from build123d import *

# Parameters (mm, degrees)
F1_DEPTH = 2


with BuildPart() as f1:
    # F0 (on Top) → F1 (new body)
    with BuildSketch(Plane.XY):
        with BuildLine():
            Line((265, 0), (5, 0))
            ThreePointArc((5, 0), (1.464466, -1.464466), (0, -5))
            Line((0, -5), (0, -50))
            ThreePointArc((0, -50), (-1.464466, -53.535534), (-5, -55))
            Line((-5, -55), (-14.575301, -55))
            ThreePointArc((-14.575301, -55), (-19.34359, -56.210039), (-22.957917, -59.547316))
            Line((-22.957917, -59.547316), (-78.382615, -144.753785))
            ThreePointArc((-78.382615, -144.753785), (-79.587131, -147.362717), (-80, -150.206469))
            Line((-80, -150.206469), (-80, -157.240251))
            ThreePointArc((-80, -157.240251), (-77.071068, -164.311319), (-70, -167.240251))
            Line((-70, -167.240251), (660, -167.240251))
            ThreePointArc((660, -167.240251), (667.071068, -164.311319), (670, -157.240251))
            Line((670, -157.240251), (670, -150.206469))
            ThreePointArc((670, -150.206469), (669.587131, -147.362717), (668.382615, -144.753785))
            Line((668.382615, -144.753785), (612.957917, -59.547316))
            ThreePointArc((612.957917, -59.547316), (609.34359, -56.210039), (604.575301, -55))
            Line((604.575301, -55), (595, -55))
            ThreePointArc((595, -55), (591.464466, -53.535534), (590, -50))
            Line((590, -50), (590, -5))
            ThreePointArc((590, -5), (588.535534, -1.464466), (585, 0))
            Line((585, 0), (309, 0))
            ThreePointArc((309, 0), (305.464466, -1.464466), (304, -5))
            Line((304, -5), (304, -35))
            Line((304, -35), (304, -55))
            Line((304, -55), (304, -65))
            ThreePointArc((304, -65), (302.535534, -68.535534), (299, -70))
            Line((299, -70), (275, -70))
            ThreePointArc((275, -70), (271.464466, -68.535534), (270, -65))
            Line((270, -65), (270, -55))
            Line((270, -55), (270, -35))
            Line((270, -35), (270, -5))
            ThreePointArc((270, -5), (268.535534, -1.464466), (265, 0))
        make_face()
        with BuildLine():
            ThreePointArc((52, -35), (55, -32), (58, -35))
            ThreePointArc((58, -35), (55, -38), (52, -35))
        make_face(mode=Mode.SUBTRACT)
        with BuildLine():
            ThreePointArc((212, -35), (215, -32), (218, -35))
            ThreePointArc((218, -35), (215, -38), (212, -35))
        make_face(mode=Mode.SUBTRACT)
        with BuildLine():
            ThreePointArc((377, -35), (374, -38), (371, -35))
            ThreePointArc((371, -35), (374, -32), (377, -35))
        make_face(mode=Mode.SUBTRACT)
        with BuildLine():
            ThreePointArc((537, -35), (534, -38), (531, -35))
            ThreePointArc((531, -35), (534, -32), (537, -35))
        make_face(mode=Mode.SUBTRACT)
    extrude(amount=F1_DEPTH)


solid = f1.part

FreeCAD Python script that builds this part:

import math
import FreeCAD as App
import Part
import Sketcher

V = App.Vector

doc = App.newDocument("Part")
body = doc.addObject("PartDesign::Body", "Body")

sketch1 = body.newObject("Sketcher::SketchObject", "Sketch")
sketch1.AttachmentSupport = (doc.getObject("XY_Plane"), [""])
sketch1.MapMode = "FlatFace"
sketch1.addGeometry([
    Part.LineSegment(V(265, 0, 0), V(5, 0, 0)),
    Part.ArcOfCircle(Part.Circle(V(5, -5, 0), V(0, 0, 1), 5), math.radians(89.999996), math.radians(180.000004)),
    Part.LineSegment(V(0, -5, 0), V(0, -50, 0)),
    Part.ArcOfCircle(Part.Circle(V(-5, -50, 0), V(0, 0, 1), 5), math.radians(-90.000004), math.radians(0.000004)),
    Part.LineSegment(V(-5, -55, 0), V(-14.575301, -55, 0)),
    Part.ArcOfCircle(Part.Circle(V(-14.575299, -65.000005, 0), V(0, 0, 1), 10.000005), math.radians(90.000011), math.radians(146.956978)),
    Part.LineSegment(V(-22.957917, -59.547316, 0), V(-78.382615, -144.753785, 0)),
    Part.ArcOfCircle(Part.Circle(V(-70.000009, -150.206467, 0), V(0, 0, 1), 9.999991), math.radians(146.956976), math.radians(180.000014)),
    Part.LineSegment(V(-80, -150.206469, 0), V(-80, -157.240251, 0)),
    Part.ArcOfCircle(Part.Circle(V(-70.000001, -157.240252, 0), V(0, 0, 1), 9.999999), math.radians(179.999996), math.radians(270.000004)),
    Part.LineSegment(V(-70, -167.240251, 0), V(660, -167.240251, 0)),
    Part.ArcOfCircle(Part.Circle(V(660.000001, -157.240252, 0), V(0, 0, 1), 9.999999), math.radians(-90.000004), math.radians(0.000004)),
    Part.LineSegment(V(670, -157.240251, 0), V(670, -150.206469, 0)),
    Part.ArcOfCircle(Part.Circle(V(660.000009, -150.206467, 0), V(0, 0, 1), 9.999991), math.radians(-0.000014), math.radians(33.043024)),
    Part.LineSegment(V(668.382615, -144.753785, 0), V(612.957917, -59.547316, 0)),
    Part.ArcOfCircle(Part.Circle(V(604.575299, -65.000005, 0), V(0, 0, 1), 10.000005), math.radians(33.043022), math.radians(89.999989)),
    Part.LineSegment(V(604.575301, -55, 0), V(595, -55, 0)),
    Part.ArcOfCircle(Part.Circle(V(595, -50, 0), V(0, 0, 1), 5), math.radians(179.999996), math.radians(270.000004)),
    Part.LineSegment(V(590, -50, 0), V(590, -5, 0)),
    Part.ArcOfCircle(Part.Circle(V(585, -5, 0), V(0, 0, 1), 5), math.radians(-0.000004), math.radians(90.000004)),
    Part.LineSegment(V(585, 0, 0), V(309, 0, 0)),
    Part.ArcOfCircle(Part.Circle(V(309, -5, 0), V(0, 0, 1), 5), math.radians(89.999996), math.radians(180.000004)),
    Part.LineSegment(V(304, -5, 0), V(304, -65, 0)),
    Part.ArcOfCircle(Part.Circle(V(299, -65, 0), V(0, 0, 1), 5), math.radians(-90.000004), math.radians(0.000004)),
    Part.LineSegment(V(299, -70, 0), V(275, -70, 0)),
    Part.ArcOfCircle(Part.Circle(V(275, -65, 0), V(0, 0, 1), 5), math.radians(179.999996), math.radians(270.000004)),
    Part.LineSegment(V(270, -65, 0), V(270, -5, 0)),
    Part.ArcOfCircle(Part.Circle(V(265, -5, 0), V(0, 0, 1), 5), math.radians(-0.000004), math.radians(90.000004)),
    Part.Circle(V(55, -35, 0), V(0, 0, 1), 3),
    Part.Circle(V(215, -35, 0), V(0, 0, 1), 3),
    Part.Circle(V(374, -35, 0), V(0, 0, 1), 3),
    Part.Circle(V(534, -35, 0), V(0, 0, 1), 3),
], False)
sketch1.addConstraint([
    Sketcher.Constraint("Tangent", 0, 2, 1, 1),
    Sketcher.Constraint("Tangent", 1, 2, 2, 1),
    Sketcher.Constraint("Tangent", 2, 2, 3, 2),
    Sketcher.Constraint("Tangent", 3, 1, 4, 1),
    Sketcher.Constraint("Tangent", 4, 2, 5, 1),
    Sketcher.Constraint("Tangent", 5, 2, 6, 1),
    Sketcher.Constraint("Tangent", 6, 2, 7, 1),
    Sketcher.Constraint("Tangent", 7, 2, 8, 1),
    Sketcher.Constraint("Tangent", 8, 2, 9, 1),
    Sketcher.Constraint("Tangent", 9, 2, 10, 1),
    Sketcher.Constraint("Tangent", 10, 2, 11, 1),
    Sketcher.Constraint("Tangent", 11, 2, 12, 1),
    Sketcher.Constraint("Tangent", 12, 2, 13, 1),
    Sketcher.Constraint("Tangent", 13, 2, 14, 1),
    Sketcher.Constraint("Tangent", 14, 2, 15, 1),
    Sketcher.Constraint("Tangent", 15, 2, 16, 1),
    Sketcher.Constraint("Tangent", 16, 2, 17, 2),
    Sketcher.Constraint("Tangent", 17, 1, 18, 1),
    Sketcher.Constraint("Tangent", 18, 2, 19, 1),
    Sketcher.Constraint("Tangent", 19, 2, 20, 1),
    Sketcher.Constraint("Tangent", 20, 2, 21, 1),
    Sketcher.Constraint("Tangent", 21, 2, 22, 1),
    Sketcher.Constraint("Tangent", 22, 2, 23, 2),
    Sketcher.Constraint("Tangent", 23, 1, 24, 1),
    Sketcher.Constraint("Tangent", 24, 2, 25, 2),
    Sketcher.Constraint("Tangent", 25, 1, 26, 1),
    Sketcher.Constraint("Tangent", 26, 2, 27, 1),
    Sketcher.Constraint("Tangent", 27, 2, 0, 1),
    Sketcher.Constraint("Horizontal", 0),
    Sketcher.Constraint("Vertical", 2),
    Sketcher.Constraint("Horizontal", 4),
    Sketcher.Constraint("Vertical", 8),
    Sketcher.Constraint("Horizontal", 10),
    Sketcher.Constraint("Vertical", 12),
    Sketcher.Constraint("Horizontal", 16),
    Sketcher.Constraint("Vertical", 18),
    Sketcher.Constraint("Horizontal", 20),
    Sketcher.Constraint("Vertical", 22),
    Sketcher.Constraint("Horizontal", 24),
    Sketcher.Constraint("Vertical", 26),
    Sketcher.Constraint("Equal", 1, 3),
    Sketcher.Constraint("Equal", 9, 11),
    Sketcher.Constraint("Equal", 7, 13),
    Sketcher.Constraint("Equal", 5, 15),
    Sketcher.Constraint("Equal", 3, 17),
    Sketcher.Constraint("Equal", 17, 19),
    Sketcher.Constraint("Equal", 19, 21),
    Sketcher.Constraint("Equal", 21, 23),
    Sketcher.Constraint("Equal", 23, 25),
    Sketcher.Constraint("Equal", 25, 27),
    Sketcher.Constraint("Equal", 28, 29),
    Sketcher.Constraint("Equal", 29, 30),
    Sketcher.Constraint("Equal", 30, 31),
    Sketcher.Constraint("PointOnObject", 0, 2, -1),
    Sketcher.Constraint("PointOnObject", 1, 2, -2),
    Sketcher.Constraint("PointOnObject", 19, 2, -1),
    Sketcher.Constraint("Horizontal", 7, 3, 13, 3),
    Sketcher.Constraint("Horizontal", 5, 3, 15, 3),
    Sketcher.Constraint("Horizontal", 28, 3, 29, 3),
    Sketcher.Constraint("Horizontal", 29, 3, 30, 3),
    Sketcher.Constraint("Horizontal", 30, 3, 31, 3),
    Sketcher.Constraint("Horizontal", 6, 2, 13, 2),
    Sketcher.Constraint("Equal", 4, 16),
    Sketcher.Constraint("Diameter", 28, 6.0),
    Sketcher.Constraint("Radius", 1, 5.0),
    Sketcher.Constraint("Radius", 9, 9.999999),
    Sketcher.Constraint("DistanceX", 0, 2, 0, 1, 260.0),
    Sketcher.Constraint("DistanceX", 10, 1, 10, 2, 730.0),
    Sketcher.Constraint("DistanceX", 20, 2, 20, 1, 276.0),
    Sketcher.Constraint("DistanceX", 24, 2, 24, 1, 24.0),
    Sketcher.Constraint("DistanceY", 2, 2, 2, 1, 45.0),
    Sketcher.Constraint("DistanceY", 22, 2, 22, 1, 60.0),
    Sketcher.Constraint("DistanceX", -1, 1, 28, 3, 55.0),
    Sketcher.Constraint("DistanceY", 28, 3, -1, 1, 35.0),
    Sketcher.Constraint("DistanceX", -1, 1, 29, 3, 215.0),
    Sketcher.Constraint("DistanceX", -1, 1, 30, 3, 374.0),
    Sketcher.Constraint("DistanceX", -1, 1, 31, 3, 534.0),
    Sketcher.Constraint("Radius", 7, 9.999991),
    Sketcher.Constraint("DistanceX", 4, 2, 4, 1, 9.575301),
    Sketcher.Constraint("Radius", 5, 10.000005),
    Sketcher.Constraint("Distance", 6, 101.64664),
    Sketcher.Constraint("DistanceY", 8, 2, 8, 1, 7.033782),
])
pad1 = body.newObject("PartDesign::Pad", "Pad")
pad1.Profile = sketch1
pad1.Length = 2

doc.recompute()
